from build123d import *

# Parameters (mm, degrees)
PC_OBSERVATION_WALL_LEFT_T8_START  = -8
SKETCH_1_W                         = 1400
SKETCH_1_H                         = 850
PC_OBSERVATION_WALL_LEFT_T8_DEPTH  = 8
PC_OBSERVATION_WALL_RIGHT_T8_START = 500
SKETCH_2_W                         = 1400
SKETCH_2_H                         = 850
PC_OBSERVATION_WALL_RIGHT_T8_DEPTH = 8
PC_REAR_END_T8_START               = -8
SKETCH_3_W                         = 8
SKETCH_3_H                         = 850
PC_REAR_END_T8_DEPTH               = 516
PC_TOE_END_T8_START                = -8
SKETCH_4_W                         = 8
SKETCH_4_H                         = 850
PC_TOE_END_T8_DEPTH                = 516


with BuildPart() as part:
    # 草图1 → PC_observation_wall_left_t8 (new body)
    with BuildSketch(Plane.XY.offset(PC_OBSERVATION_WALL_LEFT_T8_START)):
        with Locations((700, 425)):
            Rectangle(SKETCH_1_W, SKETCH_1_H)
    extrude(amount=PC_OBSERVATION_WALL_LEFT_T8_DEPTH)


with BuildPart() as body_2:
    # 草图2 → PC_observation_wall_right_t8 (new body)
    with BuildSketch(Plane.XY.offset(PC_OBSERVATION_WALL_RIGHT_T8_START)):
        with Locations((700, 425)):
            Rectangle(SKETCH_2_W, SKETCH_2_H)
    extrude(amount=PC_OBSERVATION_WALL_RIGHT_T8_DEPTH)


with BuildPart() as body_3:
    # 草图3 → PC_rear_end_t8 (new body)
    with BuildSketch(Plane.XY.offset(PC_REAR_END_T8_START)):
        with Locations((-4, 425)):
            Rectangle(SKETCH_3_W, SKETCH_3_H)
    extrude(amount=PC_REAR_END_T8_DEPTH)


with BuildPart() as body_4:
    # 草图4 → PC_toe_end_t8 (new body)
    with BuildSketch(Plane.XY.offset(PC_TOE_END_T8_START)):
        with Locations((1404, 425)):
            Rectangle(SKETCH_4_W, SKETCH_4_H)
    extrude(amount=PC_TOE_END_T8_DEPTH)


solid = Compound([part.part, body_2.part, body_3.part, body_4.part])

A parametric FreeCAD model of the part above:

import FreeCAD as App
import Part
import Sketcher

V = App.Vector
Q = App.Units.Quantity

doc = App.newDocument("Part")
body = doc.addObject("PartDesign::Body", "Body")

# Sketch on XY plane
sketch1 = body.newObject("Sketcher::SketchObject", "Sketch")
sketch1.AttachmentSupport = (doc.getObject("XY_Plane"), [""])
sketch1.MapMode = "FlatFace"
sketch1.AttachmentOffset = App.Placement(V(0, 0, -8), App.Rotation())
sketch1.addGeometry([
    Part.LineSegment(V(0, 850, 0), V(0, 0, 0)),
    Part.LineSegment(V(0, 0, 0), V(1400, 0, 0)),
    Part.LineSegment(V(1400, 0, 0), V(1400, 850, 0)),
    Part.LineSegment(V(1400, 850, 0), V(0, 850, 0)),
], False)
sketch1.addConstraint([
    Sketcher.Constraint("Coincident", 0, 2, 1, 1),
    Sketcher.Constraint("Coincident", 1, 2, 2, 1),
    Sketcher.Constraint("Coincident", 2, 2, 3, 1),
    Sketcher.Constraint("Coincident", 3, 2, 0, 1),
    Sketcher.Constraint("Vertical", 0),
    Sketcher.Constraint("Horizontal", 1),
    Sketcher.Constraint("Vertical", 2),
    Sketcher.Constraint("Horizontal", 3),
    Sketcher.Constraint("Coincident", 0, 2, -1, 1),
    Sketcher.Constraint("DistanceX", 1, 1, 1, 2, Q("1400 mm")),
    Sketcher.Constraint("DistanceY", 0, 2, 0, 1, Q("850 mm")),
])
pad1 = body.newObject("PartDesign::Pad", "Pad")
pad1.Profile = sketch1
pad1.Length = 8
body2 = doc.addObject("PartDesign::Body", "Body001")

# Sketch on XY plane
sketch2 = body2.newObject("Sketcher::SketchObject", "Sketch001")
sketch2.AttachmentSupport = (doc.getObject("XY_Plane001"), [""])
sketch2.MapMode = "FlatFace"
sketch2.AttachmentOffset = App.Placement(V(0, 0, 500), App.Rotation())
sketch2.addGeometry([
    Part.LineSegment(V(0, 850, 0), V(0, 0, 0)),
    Part.LineSegment(V(0, 0, 0), V(1400, 0, 0)),
    Part.LineSegment(V(1400, 0, 0), V(1400, 850, 0)),
    Part.LineSegment(V(1400, 850, 0), V(0, 850, 0)),
], False)
sketch2.addConstraint([
    Sketcher.Constraint("Coincident", 0, 2, 1, 1),
    Sketcher.Constraint("Coincident", 1, 2, 2, 1),
    Sketcher.Constraint("Coincident", 2, 2, 3, 1),
    Sketcher.Constraint("Coincident", 3, 2, 0, 1),
    Sketcher.Constraint("Vertical", 0),
    Sketcher.Constraint("Horizontal", 1),
    Sketcher.Constraint("Vertical", 2),
    Sketcher.Constraint("Horizontal", 3),
    Sketcher.Constraint("Coincident", 0, 2, -1, 1),
    Sketcher.Constraint("DistanceX", 1, 1, 1, 2, Q("1400 mm")),
    Sketcher.Constraint("DistanceY", 0, 2, 0, 1, Q("850 mm")),
])
pad2 = body2.newObject("PartDesign::Pad", "Pad001")
pad2.Profile = sketch2
pad2.Length = 8
body3 = doc.addObject("PartDesign::Body", "Body002")

# Sketch on XY plane
sketch3 = body3.newObject("Sketcher::SketchObject", "Sketch002")
sketch3.AttachmentSupport = (doc.getObject("XY_Plane002"), [""])
sketch3.MapMode = "FlatFace"
sketch3.AttachmentOffset = App.Placement(V(0, 0, -8), App.Rotation())
sketch3.addGeometry([
    Part.LineSegment(V(-8, 850, 0), V(-8, 0, 0)),
    Part.LineSegment(V(-8, 0, 0), V(0, 0, 0)),
    Part.LineSegment(V(0, 0, 0), V(0, 850, 0)),
    Part.LineSegment(V(0, 850, 0), V(-8, 850, 0)),
], False)
sketch3.addConstraint([
    Sketcher.Constraint("Coincident", 0, 2, 1, 1),
    Sketcher.Constraint("Coincident", 1, 2, 2, 1),
    Sketcher.Constraint("Coincident", 2, 2, 3, 1),
    Sketcher.Constraint("Coincident", 3, 2, 0, 1),
    Sketcher.Constraint("Vertical", 0),
    Sketcher.Constraint("Horizontal", 1),
    Sketcher.Constraint("Vertical", 2),
    Sketcher.Constraint("Horizontal", 3),
    Sketcher.Constraint("Coincident", 1, 2, -1, 1),
    Sketcher.Constraint("DistanceX", 1, 1, 1, 2, Q("8 mm")),
    Sketcher.Constraint("DistanceY", 0, 2, 0, 1, Q("850 mm")),
])
pad3 = body3.newObject("PartDesign::Pad", "Pad002")
pad3.Profile = sketch3
pad3.Length = 516
body4 = doc.addObject("PartDesign::Body", "Body003")

# Sketch on XY plane
sketch4 = body4.newObject("Sketcher::SketchObject", "Sketch003")
sketch4.AttachmentSupport = (doc.getObject("XY_Plane003"), [""])
sketch4.MapMode = "FlatFace"
sketch4.AttachmentOffset = App.Placement(V(0, 0, -8), App.Rotation())
sketch4.addGeometry([
    Part.LineSegment(V(1400, 850, 0), V(1400, 0, 0)),
    Part.LineSegment(V(1400, 0, 0), V(1408, 0, 0)),
    Part.LineSegment(V(1408, 0, 0), V(1408, 850, 0)),
    Part.LineSegment(V(1408, 850, 0), V(1400, 850, 0)),
], False)
sketch4.addConstraint([
    Sketcher.Constraint("Coincident", 0, 2, 1, 1),
    Sketcher.Constraint("Coincident", 1, 2, 2, 1),
    Sketcher.Constraint("Coincident", 2, 2, 3, 1),
    Sketcher.Constraint("Coincident", 3, 2, 0, 1),
    Sketcher.Constraint("Vertical", 0),
    Sketcher.Constraint("Horizontal", 1),
    Sketcher.Constraint("Vertical", 2),
    Sketcher.Constraint("Horizontal", 3),
    Sketcher.Constraint("PointOnObject", 0, 2, -1),
    Sketcher.Constraint("DistanceX", 1, 1, 1, 2, Q("8 mm")),
    Sketcher.Constraint("DistanceY", 0, 2, 0, 1, Q("850 mm")),
    Sketcher.Constraint("DistanceX", -1, 1, 0, 2, Q("1400 mm")),
])
pad4 = body4.newObject("PartDesign::Pad", "Pad003")
pad4.Profile = sketch4
pad4.Length = 516

doc.recompute()
